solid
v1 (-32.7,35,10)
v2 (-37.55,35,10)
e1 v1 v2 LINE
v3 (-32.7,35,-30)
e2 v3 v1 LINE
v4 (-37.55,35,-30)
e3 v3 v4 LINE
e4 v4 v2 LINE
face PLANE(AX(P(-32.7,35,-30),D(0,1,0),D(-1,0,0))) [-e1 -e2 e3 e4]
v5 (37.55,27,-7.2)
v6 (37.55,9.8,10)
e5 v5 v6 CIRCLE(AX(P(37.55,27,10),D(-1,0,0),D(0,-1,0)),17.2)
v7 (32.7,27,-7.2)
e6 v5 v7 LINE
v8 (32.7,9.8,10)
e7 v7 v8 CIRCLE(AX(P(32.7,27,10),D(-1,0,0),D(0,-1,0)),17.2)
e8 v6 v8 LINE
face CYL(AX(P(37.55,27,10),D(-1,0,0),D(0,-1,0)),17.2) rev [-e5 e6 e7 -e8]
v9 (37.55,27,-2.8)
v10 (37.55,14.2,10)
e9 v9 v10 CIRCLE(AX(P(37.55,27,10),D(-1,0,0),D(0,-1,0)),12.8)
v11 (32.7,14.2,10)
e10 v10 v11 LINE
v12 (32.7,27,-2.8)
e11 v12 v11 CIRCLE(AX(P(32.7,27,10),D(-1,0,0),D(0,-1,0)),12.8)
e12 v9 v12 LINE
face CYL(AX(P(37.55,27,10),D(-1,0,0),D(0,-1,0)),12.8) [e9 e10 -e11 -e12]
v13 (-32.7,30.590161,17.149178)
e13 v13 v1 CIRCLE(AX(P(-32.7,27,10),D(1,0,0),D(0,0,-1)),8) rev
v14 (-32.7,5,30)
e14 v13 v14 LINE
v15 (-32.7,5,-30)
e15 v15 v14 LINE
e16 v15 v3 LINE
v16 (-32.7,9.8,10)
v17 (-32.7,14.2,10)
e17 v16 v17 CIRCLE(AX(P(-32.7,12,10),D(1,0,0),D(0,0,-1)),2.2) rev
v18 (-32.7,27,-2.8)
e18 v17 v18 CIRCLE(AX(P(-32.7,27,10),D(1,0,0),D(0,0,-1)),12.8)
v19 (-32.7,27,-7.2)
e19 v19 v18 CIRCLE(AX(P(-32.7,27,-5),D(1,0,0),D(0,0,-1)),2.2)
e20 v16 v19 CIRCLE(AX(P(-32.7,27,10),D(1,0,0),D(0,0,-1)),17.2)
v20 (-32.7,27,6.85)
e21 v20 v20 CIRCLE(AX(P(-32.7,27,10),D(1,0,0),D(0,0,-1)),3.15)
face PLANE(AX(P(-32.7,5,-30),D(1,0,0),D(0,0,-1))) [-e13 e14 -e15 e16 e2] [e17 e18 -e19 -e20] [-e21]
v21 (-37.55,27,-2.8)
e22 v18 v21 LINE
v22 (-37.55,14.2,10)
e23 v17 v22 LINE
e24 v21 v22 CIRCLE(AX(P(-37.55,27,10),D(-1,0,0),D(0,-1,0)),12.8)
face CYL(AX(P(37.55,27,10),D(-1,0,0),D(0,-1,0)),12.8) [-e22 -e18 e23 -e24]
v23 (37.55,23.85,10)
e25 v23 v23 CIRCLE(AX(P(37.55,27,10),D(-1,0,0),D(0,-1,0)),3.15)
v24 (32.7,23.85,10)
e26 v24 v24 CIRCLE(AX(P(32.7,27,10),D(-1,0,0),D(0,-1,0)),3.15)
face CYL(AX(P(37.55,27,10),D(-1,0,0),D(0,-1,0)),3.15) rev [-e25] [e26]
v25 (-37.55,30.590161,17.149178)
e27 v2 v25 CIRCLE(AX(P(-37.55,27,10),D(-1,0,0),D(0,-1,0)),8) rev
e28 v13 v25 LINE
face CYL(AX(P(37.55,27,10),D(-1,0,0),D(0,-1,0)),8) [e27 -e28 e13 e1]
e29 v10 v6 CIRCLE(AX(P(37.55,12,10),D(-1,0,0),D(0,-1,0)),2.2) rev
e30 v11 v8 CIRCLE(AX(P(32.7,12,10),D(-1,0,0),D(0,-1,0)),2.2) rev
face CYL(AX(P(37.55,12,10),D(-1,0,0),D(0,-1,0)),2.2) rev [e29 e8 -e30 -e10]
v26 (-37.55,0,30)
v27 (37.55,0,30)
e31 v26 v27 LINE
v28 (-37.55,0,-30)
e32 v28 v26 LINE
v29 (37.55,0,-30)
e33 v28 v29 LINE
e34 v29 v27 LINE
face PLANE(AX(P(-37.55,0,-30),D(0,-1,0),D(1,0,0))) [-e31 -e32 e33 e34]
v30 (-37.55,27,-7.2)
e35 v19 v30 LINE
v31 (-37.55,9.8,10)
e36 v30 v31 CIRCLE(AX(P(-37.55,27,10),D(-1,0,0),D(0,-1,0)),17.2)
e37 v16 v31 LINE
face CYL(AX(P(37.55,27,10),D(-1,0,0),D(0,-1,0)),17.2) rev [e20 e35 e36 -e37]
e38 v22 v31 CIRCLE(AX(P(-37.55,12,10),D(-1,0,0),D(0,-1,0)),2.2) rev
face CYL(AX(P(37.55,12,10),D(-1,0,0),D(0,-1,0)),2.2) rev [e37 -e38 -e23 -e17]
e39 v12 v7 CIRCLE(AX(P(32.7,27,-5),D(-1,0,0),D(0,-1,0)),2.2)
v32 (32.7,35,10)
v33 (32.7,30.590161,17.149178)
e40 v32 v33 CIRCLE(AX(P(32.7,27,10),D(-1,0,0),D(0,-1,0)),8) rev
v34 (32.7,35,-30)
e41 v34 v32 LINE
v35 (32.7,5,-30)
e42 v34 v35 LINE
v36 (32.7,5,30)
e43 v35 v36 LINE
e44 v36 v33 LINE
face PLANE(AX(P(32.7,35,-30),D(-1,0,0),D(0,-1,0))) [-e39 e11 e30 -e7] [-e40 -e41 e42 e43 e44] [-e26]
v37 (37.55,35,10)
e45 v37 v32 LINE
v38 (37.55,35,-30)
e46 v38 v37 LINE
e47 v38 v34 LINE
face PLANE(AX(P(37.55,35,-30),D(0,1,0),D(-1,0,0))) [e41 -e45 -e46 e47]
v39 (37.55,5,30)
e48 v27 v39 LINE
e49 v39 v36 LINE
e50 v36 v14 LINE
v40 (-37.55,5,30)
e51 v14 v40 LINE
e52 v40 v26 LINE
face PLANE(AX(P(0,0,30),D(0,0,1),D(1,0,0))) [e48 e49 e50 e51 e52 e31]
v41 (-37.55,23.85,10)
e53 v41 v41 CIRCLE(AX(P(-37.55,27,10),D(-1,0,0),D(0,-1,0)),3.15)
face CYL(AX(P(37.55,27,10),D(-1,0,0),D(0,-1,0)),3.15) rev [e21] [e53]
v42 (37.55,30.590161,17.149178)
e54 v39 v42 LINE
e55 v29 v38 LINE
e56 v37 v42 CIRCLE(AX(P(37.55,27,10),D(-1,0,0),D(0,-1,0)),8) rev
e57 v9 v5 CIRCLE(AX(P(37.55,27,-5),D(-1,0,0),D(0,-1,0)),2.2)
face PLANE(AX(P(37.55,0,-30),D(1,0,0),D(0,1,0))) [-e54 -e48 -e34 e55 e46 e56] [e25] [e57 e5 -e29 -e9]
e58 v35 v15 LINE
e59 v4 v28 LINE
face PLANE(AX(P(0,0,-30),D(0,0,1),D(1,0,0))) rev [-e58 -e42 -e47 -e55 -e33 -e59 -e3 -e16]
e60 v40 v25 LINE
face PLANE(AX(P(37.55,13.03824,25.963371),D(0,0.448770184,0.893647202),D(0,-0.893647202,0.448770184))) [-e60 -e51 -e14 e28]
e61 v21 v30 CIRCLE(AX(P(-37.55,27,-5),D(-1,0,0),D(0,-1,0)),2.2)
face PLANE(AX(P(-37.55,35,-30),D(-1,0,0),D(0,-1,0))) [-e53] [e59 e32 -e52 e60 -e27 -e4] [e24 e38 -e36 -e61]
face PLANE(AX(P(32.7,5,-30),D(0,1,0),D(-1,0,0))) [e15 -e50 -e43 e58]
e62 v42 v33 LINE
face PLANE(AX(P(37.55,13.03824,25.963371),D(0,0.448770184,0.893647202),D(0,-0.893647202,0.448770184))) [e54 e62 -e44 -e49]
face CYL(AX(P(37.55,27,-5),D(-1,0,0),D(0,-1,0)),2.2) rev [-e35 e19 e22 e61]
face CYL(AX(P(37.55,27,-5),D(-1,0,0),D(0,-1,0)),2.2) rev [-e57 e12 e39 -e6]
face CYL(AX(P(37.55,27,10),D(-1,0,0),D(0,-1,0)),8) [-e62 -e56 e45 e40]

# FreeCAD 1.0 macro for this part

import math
import FreeCAD as App
import Part
import Sketcher
from FreeCAD import Vector
Q = App.Units.Quantity

doc = App.newDocument("Part")
body = doc.addObject("PartDesign::Body", "Body")

sketch1 = body.newObject("Sketcher::SketchObject", "Sketch")
sketch1.AttachmentSupport = (doc.getObject("XY_Plane"), [""])
sketch1.MapMode = "FlatFace"
sketch1.addGeometry(Part.LineSegment(Vector(-37.5, 0, 0), Vector(37.5, 0, 0)), False)
sketch1.addGeometry(Part.LineSegment(Vector(37.5, 0, 0), Vector(37.5, 35, 0)), False)
sketch1.addGeometry(Part.LineSegment(Vector(37.5, 35, 0), Vector(32.7, 35, 0)), False)
sketch1.addGeometry(Part.LineSegment(Vector(32.7, 35, 0), Vector(32.7, 5, 0)), False)
sketch1.addGeometry(Part.LineSegment(Vector(32.7, 5, 0), Vector(-32.7, 5, 0)), False)
sketch1.addGeometry(Part.LineSegment(Vector(-32.7, 5, 0), Vector(-32.7, 35, 0)), False)
sketch1.addGeometry(Part.LineSegment(Vector(-32.7, 35, 0), Vector(-37.5, 35, 0)), False)
sketch1.addGeometry(Part.LineSegment(Vector(-37.5, 35, 0), Vector(-37.5, 0, 0)), False)
sketch1.addConstraint(Sketcher.Constraint("Coincident", 0, 2, 1, 1))
sketch1.addConstraint(Sketcher.Constraint("Coincident", 1, 2, 2, 1))
sketch1.addConstraint(Sketcher.Constraint("Coincident", 2, 2, 3, 1))
sketch1.addConstraint(Sketcher.Constraint("Coincident", 3, 2, 4, 1))
sketch1.addConstraint(Sketcher.Constraint("Coincident", 4, 2, 5, 1))
sketch1.addConstraint(Sketcher.Constraint("Coincident", 5, 2, 6, 1))
sketch1.addConstraint(Sketcher.Constraint("Coincident", 6, 2, 7, 1))
sketch1.addConstraint(Sketcher.Constraint("Coincident", 7, 2, 0, 1))
sketch1.addConstraint(Sketcher.Constraint("Horizontal", 0))
sketch1.addConstraint(Sketcher.Constraint("Vertical", 1))
sketch1.addConstraint(Sketcher.Constraint("Horizontal", 2))
sketch1.addConstraint(Sketcher.Constraint("Vertical", 3))
sketch1.addConstraint(Sketcher.Constraint("Horizontal", 4))
sketch1.addConstraint(Sketcher.Constraint("Vertical", 5))
sketch1.addConstraint(Sketcher.Constraint("Horizontal", 6))
sketch1.addConstraint(Sketcher.Constraint("Vertical", 7))
sketch1.addConstraint(Sketcher.Constraint("Symmetric", 0, 2, 7, 2, -1, 1))
sketch1.addConstraint(Sketcher.Constraint("Symmetric", 2, 2, 5, 2, -2))
sketch1.addConstraint(Sketcher.Constraint("DistanceY", 1, 1, 1, 2, Q("35 mm")))
sketch1.addConstraint(Sketcher.Constraint("DistanceY", 3, 2, 3, 1, Q("30 mm")))
sketch1.addConstraint(Sketcher.Constraint("DistanceX", 0, 1, 0, 2, Q("75.1 mm")))
sketch1.addConstraint(Sketcher.Constraint("DistanceX", 4, 2, 4, 1, Q("65.4 mm")))
pad1 = body.newObject("PartDesign::Pad", "Pad")
pad1.Profile = sketch1
pad1.Type = "TwoLengths"
pad1.Length = 30
pad1.Length2 = 30

sketch2 = body.newObject("Sketcher::SketchObject", "Sketch001")
sketch2.AttachmentSupport = (doc.getObject("YZ_Plane"), [""])
sketch2.MapMode = "FlatFace"
sketch2.AttachmentOffset = App.Placement(Vector(0, 0, -37.55), App.Rotation())
sketch2.addGeometry(Part.Circle(Vector(27, 10, 0), Vector(0, 0, 1), 3.1), False)
sketch2.addGeometry(Part.LineSegment(Vector(30.6, 17.1, 0), Vector(5, 30, 0)), False)
sketch2.addGeometry(Part.LineSegment(Vector(5, 30, 0), Vector(35, 30, 0)), False)
sketch2.addGeometry(Part.LineSegment(Vector(35, 30, 0), Vector(35, 10, 0)), False)
sketch2.addGeometry(Part.ArcOfCircle(Part.Circle(Vector(27, 10, 0), Vector(0, 0, 1), 8), math.radians(0), math.radians(63)), False)
sketch2.addGeometry(Part.ArcOfCircle(Part.Circle(Vector(27, 10, 0), Vector(0, 0, 1), 12.8), math.radians(-180), math.radians(-90)), False)
sketch2.addGeometry(Part.ArcOfCircle(Part.Circle(Vector(27, -5, 0), Vector(0, 0, 1), 2.2), math.radians(-90), math.radians(90)), False)
sketch2.addGeometry(Part.ArcOfCircle(Part.Circle(Vector(27, 10, 0), Vector(0, 0, 1), 17.2), math.radians(-180), math.radians(-90)), False)
sketch2.addGeometry(Part.ArcOfCircle(Part.Circle(Vector(12, 10, 0), Vector(0, 0, 1), 2.2), math.radians(0), math.radians(180)), False)
sketch2.addConstraint(Sketcher.Constraint("Coincident", 1, 2, 2, 1))
sketch2.addConstraint(Sketcher.Constraint("Coincident", 2, 2, 3, 1))
sketch2.addConstraint(Sketcher.Constraint("Tangent", 3, 2, 4, 1))
sketch2.addConstraint(Sketcher.Constraint("Tangent", 4, 2, 1, 1))
sketch2.addConstraint(Sketcher.Constraint("Tangent", 5, 2, 6, 2))
sketch2.addConstraint(Sketcher.Constraint("Tangent", 6, 1, 7, 2))
sketch2.addConstraint(Sketcher.Constraint("Tangent", 7, 1, 8, 2))
sketch2.addConstraint(Sketcher.Constraint("Tangent", 8, 1, 5, 1))
sketch2.addConstraint(Sketcher.Constraint("Horizontal", 2))
sketch2.addConstraint(Sketcher.Constraint("Vertical", 3))
sketch2.addConstraint(Sketcher.Constraint("Coincident", 4, 3, 0, 3))
sketch2.addConstraint(Sketcher.Constraint("Coincident", 5, 3, 0, 3))
sketch2.addConstraint(Sketcher.Constraint("Coincident", 7, 3, 0, 3))
sketch2.addConstraint(Sketcher.Constraint("Horizontal", 7, 3, 8, 3))
sketch2.addConstraint(Sketcher.Constraint("Vertical", 5, 3, 6, 3))
sketch2.addConstraint(Sketcher.Constraint("Radius", 4, Q("8 mm")))
sketch2.addConstraint(Sketcher.Constraint("Diameter", 0, Q("6.3 mm")))
sketch2.addConstraint(Sketcher.Constraint("Radius", 5, Q("12.8 mm")))
sketch2.addConstraint(Sketcher.Constraint("Radius", 6, Q("2.2 mm")))
sketch2.addConstraint(Sketcher.Constraint("DistanceX", 2, 1, 2, 2, Q("30 mm")))
sketch2.addConstraint(Sketcher.Constraint("DistanceY", 3, 2, 3, 1, Q("20 mm")))
sketch2.addConstraint(Sketcher.Constraint("DistanceX", -1, 1, 0, 3, Q("27 mm")))
sketch2.addConstraint(Sketcher.Constraint("DistanceY", -1, 1, 0, 3, Q("10 mm")))
pocket1 = body.newObject("PartDesign::Pocket", "Pocket")
pocket1.Profile = sketch2
pocket1.Type = "ThroughAll"
pocket1.Reversed = True

doc.recompute()
